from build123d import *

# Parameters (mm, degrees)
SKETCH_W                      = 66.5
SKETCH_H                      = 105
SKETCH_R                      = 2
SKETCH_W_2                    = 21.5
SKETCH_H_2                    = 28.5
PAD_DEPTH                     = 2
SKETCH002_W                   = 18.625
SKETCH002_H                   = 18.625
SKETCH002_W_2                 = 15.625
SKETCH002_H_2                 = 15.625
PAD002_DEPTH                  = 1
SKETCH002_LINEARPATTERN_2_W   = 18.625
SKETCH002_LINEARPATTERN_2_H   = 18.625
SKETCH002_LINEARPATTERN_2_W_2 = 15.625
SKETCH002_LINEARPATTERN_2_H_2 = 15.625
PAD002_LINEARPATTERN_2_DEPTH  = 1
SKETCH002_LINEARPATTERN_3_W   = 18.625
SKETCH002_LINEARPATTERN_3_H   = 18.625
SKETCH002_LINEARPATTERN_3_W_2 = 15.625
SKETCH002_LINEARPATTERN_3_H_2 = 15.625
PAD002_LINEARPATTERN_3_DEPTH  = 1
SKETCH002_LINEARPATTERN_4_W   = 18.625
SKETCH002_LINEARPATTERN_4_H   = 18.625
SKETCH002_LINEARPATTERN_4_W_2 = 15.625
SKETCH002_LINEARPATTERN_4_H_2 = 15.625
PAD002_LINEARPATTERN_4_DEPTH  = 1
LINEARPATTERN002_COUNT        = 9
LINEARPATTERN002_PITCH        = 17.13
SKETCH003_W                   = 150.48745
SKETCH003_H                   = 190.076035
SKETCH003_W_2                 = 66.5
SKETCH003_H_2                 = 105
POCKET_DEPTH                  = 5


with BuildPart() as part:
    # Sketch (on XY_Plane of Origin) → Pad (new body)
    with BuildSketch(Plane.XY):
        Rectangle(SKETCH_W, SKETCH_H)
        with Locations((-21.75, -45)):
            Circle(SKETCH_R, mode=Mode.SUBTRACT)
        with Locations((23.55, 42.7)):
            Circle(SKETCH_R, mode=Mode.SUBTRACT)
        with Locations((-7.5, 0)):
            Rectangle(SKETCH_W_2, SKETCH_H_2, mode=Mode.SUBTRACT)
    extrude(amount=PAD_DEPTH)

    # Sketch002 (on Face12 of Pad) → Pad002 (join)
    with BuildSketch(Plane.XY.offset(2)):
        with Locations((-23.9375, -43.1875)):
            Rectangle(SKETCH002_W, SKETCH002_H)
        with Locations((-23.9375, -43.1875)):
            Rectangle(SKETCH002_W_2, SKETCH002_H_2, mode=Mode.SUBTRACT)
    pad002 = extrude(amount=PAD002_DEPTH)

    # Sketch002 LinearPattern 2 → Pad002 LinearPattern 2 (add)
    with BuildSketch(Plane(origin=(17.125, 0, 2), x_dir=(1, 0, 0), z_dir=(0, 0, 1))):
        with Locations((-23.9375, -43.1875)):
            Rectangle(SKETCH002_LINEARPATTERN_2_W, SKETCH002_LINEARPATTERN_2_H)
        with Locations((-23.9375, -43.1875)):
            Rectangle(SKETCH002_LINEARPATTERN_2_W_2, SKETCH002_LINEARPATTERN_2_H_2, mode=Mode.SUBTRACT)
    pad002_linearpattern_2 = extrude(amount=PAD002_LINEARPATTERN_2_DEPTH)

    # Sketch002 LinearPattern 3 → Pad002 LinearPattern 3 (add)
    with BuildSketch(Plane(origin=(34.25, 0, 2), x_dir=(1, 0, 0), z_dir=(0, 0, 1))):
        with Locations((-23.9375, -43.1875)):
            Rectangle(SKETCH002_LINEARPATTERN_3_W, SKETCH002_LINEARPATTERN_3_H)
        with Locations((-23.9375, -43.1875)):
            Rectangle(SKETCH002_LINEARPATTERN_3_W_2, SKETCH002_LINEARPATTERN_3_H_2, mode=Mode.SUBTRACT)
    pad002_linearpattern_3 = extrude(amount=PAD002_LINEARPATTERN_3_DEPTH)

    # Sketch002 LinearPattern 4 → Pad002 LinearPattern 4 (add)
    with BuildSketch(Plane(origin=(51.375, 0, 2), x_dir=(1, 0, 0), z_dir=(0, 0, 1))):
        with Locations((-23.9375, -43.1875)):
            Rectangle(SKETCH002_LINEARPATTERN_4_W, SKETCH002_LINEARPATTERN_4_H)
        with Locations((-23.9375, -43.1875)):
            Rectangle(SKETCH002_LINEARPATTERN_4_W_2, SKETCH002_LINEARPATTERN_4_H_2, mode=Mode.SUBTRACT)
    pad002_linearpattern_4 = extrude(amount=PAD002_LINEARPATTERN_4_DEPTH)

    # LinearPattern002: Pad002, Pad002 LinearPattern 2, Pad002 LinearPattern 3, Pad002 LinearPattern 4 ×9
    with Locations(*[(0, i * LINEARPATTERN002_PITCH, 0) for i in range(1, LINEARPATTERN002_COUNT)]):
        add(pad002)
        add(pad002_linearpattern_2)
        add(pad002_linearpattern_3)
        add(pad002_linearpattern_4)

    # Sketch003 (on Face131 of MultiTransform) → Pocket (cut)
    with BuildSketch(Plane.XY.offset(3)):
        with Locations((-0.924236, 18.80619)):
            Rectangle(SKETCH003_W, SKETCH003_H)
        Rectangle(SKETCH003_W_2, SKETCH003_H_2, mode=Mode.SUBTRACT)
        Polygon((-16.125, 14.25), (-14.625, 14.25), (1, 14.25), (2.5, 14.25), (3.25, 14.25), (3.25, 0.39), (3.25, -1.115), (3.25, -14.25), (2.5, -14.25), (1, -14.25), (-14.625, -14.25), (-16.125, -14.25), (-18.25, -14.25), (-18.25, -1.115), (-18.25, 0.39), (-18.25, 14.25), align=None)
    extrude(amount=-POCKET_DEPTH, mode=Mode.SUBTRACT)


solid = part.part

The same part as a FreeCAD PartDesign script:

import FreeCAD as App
import Part
import Sketcher
from FreeCAD import Vector
Q = App.Units.Quantity

doc = App.newDocument("Part")
body = doc.addObject("PartDesign::Body", "Body")

# Sketch on XY plane
sketch1 = body.newObject("Sketcher::SketchObject", "Sketch")
sketch1.AttachmentSupport = (doc.getObject("XY_Plane"), [""])
sketch1.MapMode = "FlatFace"
sketch1.addGeometry(Part.LineSegment(Vector(-33.2, 52.5, 0), Vector(-33.2, -52.5, 0)), False)
sketch1.addGeometry(Part.LineSegment(Vector(-33.2, -52.5, 0), Vector(33.2, -52.5, 0)), False)
sketch1.addGeometry(Part.LineSegment(Vector(33.2, -52.5, 0), Vector(33.2, 52.5, 0)), False)
sketch1.addGeometry(Part.LineSegment(Vector(33.2, 52.5, 0), Vector(-33.2, 52.5, 0)), False)
sketch1.addGeometry(Part.Circle(Vector(-21.8, -45, 0), Vector(0, 0, 1), 2), False)
sketch1.addGeometry(Part.LineSegment(Vector(3.2, -14.2, 0), Vector(-18.2, -14.2, 0)), False)
sketch1.addGeometry(Part.LineSegment(Vector(-18.2, -14.2, 0), Vector(-18.2, 14.2, 0)), False)
sketch1.addGeometry(Part.LineSegment(Vector(-18.2, 14.2, 0), Vector(3.2, 14.2, 0)), False)
sketch1.addGeometry(Part.LineSegment(Vector(3.2, 14.2, 0), Vector(3.2, -14.2, 0)), False)
sketch1.addGeometry(Part.Circle(Vector(23.6, 42.7, 0), Vector(0, 0, 1), 2), False)
sketch1.addConstraint(Sketcher.Constraint("Coincident", 0, 2, 1, 1))
sketch1.addConstraint(Sketcher.Constraint("Coincident", 1, 2, 2, 1))
sketch1.addConstraint(Sketcher.Constraint("Coincident", 2, 2, 3, 1))
sketch1.addConstraint(Sketcher.Constraint("Coincident", 3, 2, 0, 1))
sketch1.addConstraint(Sketcher.Constraint("Coincident", 5, 2, 6, 1))
sketch1.addConstraint(Sketcher.Constraint("Coincident", 6, 2, 7, 1))
sketch1.addConstraint(Sketcher.Constraint("Coincident", 7, 2, 8, 1))
sketch1.addConstraint(Sketcher.Constraint("Coincident", 8, 2, 5, 1))
sketch1.addConstraint(Sketcher.Constraint("Vertical", 0))
sketch1.addConstraint(Sketcher.Constraint("Horizontal", 1))
sketch1.addConstraint(Sketcher.Constraint("Vertical", 2))
sketch1.addConstraint(Sketcher.Constraint("Horizontal", 3))
sketch1.addConstraint(Sketcher.Constraint("Horizontal", 5))
sketch1.addConstraint(Sketcher.Constraint("Vertical", 6))
sketch1.addConstraint(Sketcher.Constraint("Horizontal", 7))
sketch1.addConstraint(Sketcher.Constraint("Vertical", 8))
sketch1.addConstraint(Sketcher.Constraint("Equal", 4, 9))
sketch1.addConstraint(Sketcher.Constraint("Symmetric", 0, 2, 2, 2, -1, 1))
sketch1.addConstraint(Sketcher.Constraint("Diameter", 4, Q("4 mm")))
sketch1.addConstraint(Sketcher.Constraint("DistanceY", 0, 2, 0, 1, Q("105 mm")))
sketch1.addConstraint(Sketcher.Constraint("DistanceX", 1, 1, 1, 2, Q("66.5 mm")))
sketch1.addConstraint(Sketcher.Constraint("DistanceX", 5, 2, 5, 1, Q("21.5 mm")))
sketch1.addConstraint(Sketcher.Constraint("DistanceY", 6, 1, 6, 2, Q("28.5 mm")))
sketch1.addConstraint(Sketcher.Constraint("DistanceY", 4, 3, -1, 1, Q("45 mm")))
sketch1.addConstraint(Sketcher.Constraint("DistanceX", 4, 3, 1, 2, Q("55 mm")))
sketch1.addConstraint(Sketcher.Constraint("DistanceX", 0, 2, 5, 2, Q("15 mm")))
sketch1.addConstraint(Sketcher.Constraint("DistanceY", -1, 1, 9, 3, Q("42.7 mm")))
sketch1.addConstraint(Sketcher.Constraint("DistanceX", 4, 3, 9, 3, Q("45.3 mm")))
sketch1.addConstraint(Sketcher.Constraint("DistanceY", 5, 2, -1, 1, Q("14.25 mm")))
pad1 = body.newObject("PartDesign::Pad", "Pad")
pad1.Profile = sketch1
pad1.Length = 2

# Sketch on XY plane
sketch2 = body.newObject("Sketcher::SketchObject", "Sketch001")
sketch2.AttachmentSupport = (doc.getObject("XY_Plane"), [""])
sketch2.MapMode = "FlatFace"
sketch2.AttachmentOffset = App.Placement(Vector(0, 0, 2), App.Rotation())
sketch2.addGeometry(Part.LineSegment(Vector(-33, -34, 0), Vector(-33, -52, 0)), False)
sketch2.addGeometry(Part.LineSegment(Vector(-33, -52, 0), Vector(-15, -52, 0)), False)
sketch2.addGeometry(Part.LineSegment(Vector(-15, -52, 0), Vector(-15, -34, 0)), False)
sketch2.addGeometry(Part.LineSegment(Vector(-15, -34, 0), Vector(-33, -34, 0)), False)
sketch2.addGeometry(Part.LineSegment(Vector(-16, -51, 0), Vector(-32, -51, 0)), False)
sketch2.addGeometry(Part.LineSegment(Vector(-32, -51, 0), Vector(-32, -35, 0)), False)
sketch2.addGeometry(Part.LineSegment(Vector(-32, -35, 0), Vector(-16, -35, 0)), False)
sketch2.addGeometry(Part.LineSegment(Vector(-16, -35, 0), Vector(-16, -51, 0)), False)
sketch2.addConstraint(Sketcher.Constraint("Coincident", 0, 2, 1, 1))
sketch2.addConstraint(Sketcher.Constraint("Coincident", 1, 2, 2, 1))
sketch2.addConstraint(Sketcher.Constraint("Coincident", 2, 2, 3, 1))
sketch2.addConstraint(Sketcher.Constraint("Coincident", 3, 2, 0, 1))
sketch2.addConstraint(Sketcher.Constraint("Coincident", 4, 2, 5, 1))
sketch2.addConstraint(Sketcher.Constraint("Coincident", 5, 2, 6, 1))
sketch2.addConstraint(Sketcher.Constraint("Coincident", 6, 2, 7, 1))
sketch2.addConstraint(Sketcher.Constraint("Coincident", 7, 2, 4, 1))
sketch2.addConstraint(Sketcher.Constraint("Vertical", 0))
sketch2.addConstraint(Sketcher.Constraint("Horizontal", 1))
sketch2.addConstraint(Sketcher.Constraint("Vertical", 2))
sketch2.addConstraint(Sketcher.Constraint("Horizontal", 3))
sketch2.addConstraint(Sketcher.Constraint("Horizontal", 4))
sketch2.addConstraint(Sketcher.Constraint("Vertical", 5))
sketch2.addConstraint(Sketcher.Constraint("Horizontal", 6))
sketch2.addConstraint(Sketcher.Constraint("Vertical", 7))
sketch2.addConstraint(Sketcher.Constraint("Equal", 3, 0))
sketch2.addConstraint(Sketcher.Constraint("Equal", 6, 5))
sketch2.addConstraint(Sketcher.Constraint("DistanceY", 4, 2, -1, 1, Q("51 mm")))
sketch2.addConstraint(Sketcher.Constraint("DistanceY", 0, 2, -1, 1, Q("52.5 mm")))
sketch2.addConstraint(Sketcher.Constraint("DistanceX", 0, 2, 4, 2, Q("1.5 mm")))
sketch2.addConstraint(Sketcher.Constraint("DistanceY", 5, 2, 3, 2, Q("1.5 mm")))
sketch2.addConstraint(Sketcher.Constraint("DistanceX", 1, 1, 1, 2, Q("18.625 mm")))
sketch2.addConstraint(Sketcher.Constraint("DistanceX", 0, 2, -1, 1, Q("33.25 mm")))
pad2 = body.newObject("PartDesign::Pad", "Pad001")
pad2.Profile = sketch2
pad2.Length = 1

# Sketch on XY plane
sketch3 = body.newObject("Sketcher::SketchObject", "Sketch002")
sketch3.AttachmentSupport = (doc.getObject("XY_Plane"), [""])
sketch3.MapMode = "FlatFace"
sketch3.AttachmentOffset = App.Placement(Vector(0, 0, 2), App.Rotation())
sketch3.addGeometry(Part.LineSegment(Vector(-16, -34, 0), Vector(-16, -52, 0)), False)
sketch3.addGeometry(Part.LineSegment(Vector(-16, -52, 0), Vector(2, -52, 0)), False)
sketch3.addGeometry(Part.LineSegment(Vector(2, -52, 0), Vector(2, -34, 0)), False)
sketch3.addGeometry(Part.LineSegment(Vector(2, -34, 0), Vector(-16, -34, 0)), False)
sketch3.addGeometry(Part.LineSegment(Vector(1, -51, 0), Vector(-15, -51, 0)), False)
sketch3.addGeometry(Part.LineSegment(Vector(-15, -51, 0), Vector(-15, -35, 0)), False)
sketch3.addGeometry(Part.LineSegment(Vector(-15, -35, 0), Vector(1, -35, 0)), False)
sketch3.addGeometry(Part.LineSegment(Vector(1, -35, 0), Vector(1, -51, 0)), False)
sketch3.addConstraint(Sketcher.Constraint("Coincident", 0, 2, 1, 1))
sketch3.addConstraint(Sketcher.Constraint("Coincident", 1, 2, 2, 1))
sketch3.addConstraint(Sketcher.Constraint("Coincident", 2, 2, 3, 1))
sketch3.addConstraint(Sketcher.Constraint("Coincident", 3, 2, 0, 1))
sketch3.addConstraint(Sketcher.Constraint("Coincident", 4, 2, 5, 1))
sketch3.addConstraint(Sketcher.Constraint("Coincident", 5, 2, 6, 1))
sketch3.addConstraint(Sketcher.Constraint("Coincident", 6, 2, 7, 1))
sketch3.addConstraint(Sketcher.Constraint("Coincident", 7, 2, 4, 1))
sketch3.addConstraint(Sketcher.Constraint("Vertical", 0))
sketch3.addConstraint(Sketcher.Constraint("Horizontal", 1))
sketch3.addConstraint(Sketcher.Constraint("Vertical", 2))
sketch3.addConstraint(Sketcher.Constraint("Horizontal", 3))
sketch3.addConstraint(Sketcher.Constraint("Horizontal", 4))
sketch3.addConstraint(Sketcher.Constraint("Vertical", 5))
sketch3.addConstraint(Sketcher.Constraint("Horizontal", 6))
sketch3.addConstraint(Sketcher.Constraint("Vertical", 7))
sketch3.addConstraint(Sketcher.Constraint("Equal", 3, 0))
sketch3.addConstraint(Sketcher.Constraint("Equal", 6, 5))
sketch3.addConstraint(Sketcher.Constraint("DistanceY", 4, 2, -1, 1, Q("51 mm")))
sketch3.addConstraint(Sketcher.Constraint("DistanceX", -1, 1, 6, 2, Q("1 mm")))
sketch3.addConstraint(Sketcher.Constraint("DistanceY", 0, 2, -1, 1, Q("52.5 mm")))
sketch3.addConstraint(Sketcher.Constraint("DistanceX", -1, 1, 1, 2, Q("2.5 mm")))
sketch3.addConstraint(Sketcher.Constraint("DistanceX", 0, 2, 4, 2, Q("1.5 mm")))
sketch3.addConstraint(Sketcher.Constraint("DistanceX", 1, 1, 1, 2, Q("18.625 mm")))
pad3 = body.newObject("PartDesign::Pad", "Pad002")
pad3.Profile = sketch3
pad3.Length = 1

# Sketch on XY plane
sketch4 = body.newObject("Sketcher::SketchObject", "Sketch003")
sketch4.AttachmentSupport = (doc.getObject("XY_Plane"), [""])
sketch4.MapMode = "FlatFace"
sketch4.AttachmentOffset = App.Placement(Vector(0, 0, 2), App.Rotation())
sketch4.addGeometry(Part.LineSegment(Vector(1, -34, 0), Vector(1, -52, 0)), False)
sketch4.addGeometry(Part.LineSegment(Vector(1, -52, 0), Vector(20, -52, 0)), False)
sketch4.addGeometry(Part.LineSegment(Vector(20, -52, 0), Vector(20, -34, 0)), False)
sketch4.addGeometry(Part.LineSegment(Vector(20, -34, 0), Vector(1, -34, 0)), False)
sketch4.addGeometry(Part.LineSegment(Vector(18, -51, 0), Vector(2, -51, 0)), False)
sketch4.addGeometry(Part.LineSegment(Vector(2, -51, 0), Vector(2, -35, 0)), False)
sketch4.addGeometry(Part.LineSegment(Vector(2, -35, 0), Vector(18, -35, 0)), False)
sketch4.addGeometry(Part.LineSegment(Vector(18, -35, 0), Vector(18, -51, 0)), False)
sketch4.addConstraint(Sketcher.Constraint("Coincident", 0, 2, 1, 1))
sketch4.addConstraint(Sketcher.Constraint("Coincident", 1, 2, 2, 1))
sketch4.addConstraint(Sketcher.Constraint("Coincident", 2, 2, 3, 1))
sketch4.addConstraint(Sketcher.Constraint("Coincident", 3, 2, 0, 1))
sketch4.addConstraint(Sketcher.Constraint("Coincident", 4, 2, 5, 1))
sketch4.addConstraint(Sketcher.Constraint("Coincident", 5, 2, 6, 1))
sketch4.addConstraint(Sketcher.Constraint("Coincident", 6, 2, 7, 1))
sketch4.addConstraint(Sketcher.Constraint("Coincident", 7, 2, 4, 1))
sketch4.addConstraint(Sketcher.Constraint("Vertical", 0))
sketch4.addConstraint(Sketcher.Constraint("Horizontal", 1))
sketch4.addConstraint(Sketcher.Constraint("Vertical", 2))
sketch4.addConstraint(Sketcher.Constraint("Horizontal", 3))
sketch4.addConstraint(Sketcher.Constraint("Horizontal", 4))
sketch4.addConstraint(Sketcher.Constraint("Vertical", 5))
sketch4.addConstraint(Sketcher.Constraint("Horizontal", 6))
sketch4.addConstraint(Sketcher.Constraint("Vertical", 7))
sketch4.addConstraint(Sketcher.Constraint("Equal", 3, 0))
sketch4.addConstraint(Sketcher.Constraint("Equal", 6, 5))
sketch4.addConstraint(Sketcher.Constraint("DistanceX", -1, 1, 0, 2, Q("1 mm")))
sketch4.addConstraint(Sketcher.Constraint("DistanceY", 4, 2, -1, 1, Q("51 mm")))
sketch4.addConstraint(Sketcher.Constraint("DistanceY", 0, 2, -1, 1, Q("52.5 mm")))
sketch4.addConstraint(Sketcher.Constraint("DistanceX", -1, 1, 4, 2, Q("2.5 mm")))
sketch4.addConstraint(Sketcher.Constraint("DistanceY", 5, 2, 3, 2, Q("1.5 mm")))
sketch4.addConstraint(Sketcher.Constraint("DistanceX", 1, 1, 1, 2, Q("18.625 mm")))
pad4 = body.newObject("PartDesign::Pad", "Pad003")
pad4.Profile = sketch4
pad4.Length = 1

# Sketch on XY plane
sketch5 = body.newObject("Sketcher::SketchObject", "Sketch004")
sketch5.AttachmentSupport = (doc.getObject("XY_Plane"), [""])
sketch5.MapMode = "FlatFace"
sketch5.AttachmentOffset = App.Placement(Vector(0, 0, 2), App.Rotation())
sketch5.addGeometry(Part.LineSegment(Vector(18, -34, 0), Vector(18, -52, 0)), False)
sketch5.addGeometry(Part.LineSegment(Vector(18, -52, 0), Vector(37, -52, 0)), False)
sketch5.addGeometry(Part.LineSegment(Vector(37, -52, 0), Vector(37, -34, 0)), False)
sketch5.addGeometry(Part.LineSegment(Vector(37, -34, 0), Vector(18, -34, 0)), False)
sketch5.addGeometry(Part.LineSegment(Vector(35, -51, 0), Vector(20, -51, 0)), False)
sketch5.addGeometry(Part.LineSegment(Vector(20, -51, 0), Vector(20, -35, 0)), False)
sketch5.addGeometry(Part.LineSegment(Vector(20, -35, 0), Vector(35, -35, 0)), False)
sketch5.addGeometry(Part.LineSegment(Vector(35, -35, 0), Vector(35, -51, 0)), False)
sketch5.addConstraint(Sketcher.Constraint("Coincident", 0, 2, 1, 1))
sketch5.addConstraint(Sketcher.Constraint("Coincident", 1, 2, 2, 1))
sketch5.addConstraint(Sketcher.Constraint("Coincident", 2, 2, 3, 1))
sketch5.addConstraint(Sketcher.Constraint("Coincident", 3, 2, 0, 1))
sketch5.addConstraint(Sketcher.Constraint("Coincident", 4, 2, 5, 1))
sketch5.addConstraint(Sketcher.Constraint("Coincident", 5, 2, 6, 1))
sketch5.addConstraint(Sketcher.Constraint("Coincident", 6, 2, 7, 1))
sketch5.addConstraint(Sketcher.Constraint("Coincident", 7, 2, 4, 1))
sketch5.addConstraint(Sketcher.Constraint("Vertical", 0))
sketch5.addConstraint(Sketcher.Constraint("Horizontal", 1))
sketch5.addConstraint(Sketcher.Constraint("Vertical", 2))
sketch5.addConstraint(Sketcher.Constraint("Horizontal", 3))
sketch5.addConstraint(Sketcher.Constraint("Horizontal", 4))
sketch5.addConstraint(Sketcher.Constraint("Vertical", 5))
sketch5.addConstraint(Sketcher.Constraint("Horizontal", 6))
sketch5.addConstraint(Sketcher.Constraint("Vertical", 7))
sketch5.addConstraint(Sketcher.Constraint("Equal", 3, 0))
sketch5.addConstraint(Sketcher.Constraint("Equal", 6, 5))
sketch5.addConstraint(Sketcher.Constraint("DistanceY", 4, 2, -1, 1, Q("51 mm")))
sketch5.addConstraint(Sketcher.Constraint("DistanceY", 0, 2, -1, 1, Q("52.5 mm")))
sketch5.addConstraint(Sketcher.Constraint("DistanceX", 0, 2, 4, 2, Q("1.5 mm")))
sketch5.addConstraint(Sketcher.Constraint("DistanceY", 5, 2, 3, 2, Q("1.5 mm")))
sketch5.addConstraint(Sketcher.Constraint("DistanceX", 1, 1, 1, 2, Q("18.625 mm")))
sketch5.addConstraint(Sketcher.Constraint("DistanceX", -1, 1, 1, 2, Q("36.75 mm")))
pad5 = body.newObject("PartDesign::Pad", "Pad004")
pad5.Profile = sketch5
pad5.Length = 1
doc.recompute()

linearpattern = body.newObject("PartDesign::LinearPattern", "LinearPattern")
linearpattern.Originals = [pad2, pad3, pad4, pad5]
linearpattern.Direction = (doc.getObject("Y_Axis"), [""])
linearpattern.Mode = "offset"
linearpattern.Offset = 17.13
linearpattern.Occurrences = 9
body.Tip = linearpattern

# Sketch on XY plane
sketch6 = body.newObject("Sketcher::SketchObject", "Sketch005")
sketch6.AttachmentSupport = (doc.getObject("XY_Plane"), [""])
sketch6.MapMode = "FlatFace"
sketch6.AttachmentOffset = App.Placement(Vector(0, 0, 3), App.Rotation())
sketch6.addGeometry(Part.LineSegment(Vector(-76, 114, 0), Vector(-76, -76, 0)), False)
sketch6.addGeometry(Part.LineSegment(Vector(-76, -76, 0), Vector(74, -76, 0)), False)
sketch6.addGeometry(Part.LineSegment(Vector(74, -76, 0), Vector(74, 114, 0)), False)
sketch6.addGeometry(Part.LineSegment(Vector(74, 114, 0), Vector(-76, 114, 0)), False)
sketch6.addGeometry(Part.LineSegment(Vector(33, -52, 0), Vector(-33, -52, 0)), False)
sketch6.addGeometry(Part.LineSegment(Vector(-33, -52, 0), Vector(-33, 52, 0)), False)
sketch6.addGeometry(Part.LineSegment(Vector(-33, 52, 0), Vector(33, 52, 0)), False)
sketch6.addGeometry(Part.LineSegment(Vector(33, 52, 0), Vector(33, -52, 0)), False)
sketch6.addGeometry(Part.LineSegment(Vector(3, 14, 0), Vector(-18, 14, 0)), False)
sketch6.addGeometry(Part.LineSegment(Vector(-18, 14, 0), Vector(-18, -14, 0)), False)
sketch6.addGeometry(Part.LineSegment(Vector(-18, -14, 0), Vector(3, -14, 0)), False)
sketch6.addGeometry(Part.LineSegment(Vector(3, -14, 0), Vector(3, 14, 0)), False)
sketch6.addConstraint(Sketcher.Constraint("Coincident", 0, 2, 1, 1))
sketch6.addConstraint(Sketcher.Constraint("Coincident", 1, 2, 2, 1))
sketch6.addConstraint(Sketcher.Constraint("Coincident", 2, 2, 3, 1))
sketch6.addConstraint(Sketcher.Constraint("Coincident", 3, 2, 0, 1))
sketch6.addConstraint(Sketcher.Constraint("Coincident", 4, 2, 5, 1))
sketch6.addConstraint(Sketcher.Constraint("Coincident", 5, 2, 6, 1))
sketch6.addConstraint(Sketcher.Constraint("Coincident", 6, 2, 7, 1))
sketch6.addConstraint(Sketcher.Constraint("Coincident", 7, 2, 4, 1))
sketch6.addConstraint(Sketcher.Constraint("Coincident", 8, 2, 9, 1))
sketch6.addConstraint(Sketcher.Constraint("Coincident", 9, 2, 10, 1))
sketch6.addConstraint(Sketcher.Constraint("Coincident", 10, 2, 11, 1))
sketch6.addConstraint(Sketcher.Constraint("Coincident", 11, 2, 8, 1))
sketch6.addConstraint(Sketcher.Constraint("Vertical", 0))
sketch6.addConstraint(Sketcher.Constraint("Horizontal", 1))
sketch6.addConstraint(Sketcher.Constraint("Vertical", 2))
sketch6.addConstraint(Sketcher.Constraint("Horizontal", 3))
sketch6.addConstraint(Sketcher.Constraint("Horizontal", 4))
sketch6.addConstraint(Sketcher.Constraint("Vertical", 5))
sketch6.addConstraint(Sketcher.Constraint("Horizontal", 6))
sketch6.addConstraint(Sketcher.Constraint("Vertical", 7))
sketch6.addConstraint(Sketcher.Constraint("Horizontal", 8))
sketch6.addConstraint(Sketcher.Constraint("Vertical", 9))
sketch6.addConstraint(Sketcher.Constraint("Horizontal", 10))
sketch6.addConstraint(Sketcher.Constraint("Vertical", 11))
sketch6.addConstraint(Sketcher.Constraint("Symmetric", 4, 2, 6, 2, -1, 1))
sketch6.addConstraint(Sketcher.Constraint("DistanceY", 5, 1, 5, 2, Q("105 mm")))
sketch6.addConstraint(Sketcher.Constraint("DistanceX", 4, 2, 4, 1, Q("66.5 mm")))
sketch6.addConstraint(Sketcher.Constraint("DistanceX", 8, 2, 8, 1, Q("21.5 mm")))
sketch6.addConstraint(Sketcher.Constraint("DistanceY", 9, 2, 9, 1, Q("28.5 mm")))
sketch6.addConstraint(Sketcher.Constraint("DistanceX", 5, 2, 8, 2, Q("15 mm")))
sketch6.addConstraint(Sketcher.Constraint("DistanceY", -1, 1, 8, 2, Q("14.25 mm")))
sketch6.addConstraint(Sketcher.Constraint("DistanceX", 1, 1, 1, 2, Q("150.48745 mm")))
sketch6.addConstraint(Sketcher.Constraint("DistanceY", 0, 2, 0, 1, Q("190.076035 mm")))
sketch6.addConstraint(Sketcher.Constraint("DistanceX", 0, 2, -1, 1, Q("76.167961 mm")))
sketch6.addConstraint(Sketcher.Constraint("DistanceY", 0, 2, -1, 1, Q("76.231827 mm")))
pocket1 = body.newObject("PartDesign::Pocket", "Pocket")
pocket1.Profile = sketch6
pocket1.Length = 5

doc.recompute()
